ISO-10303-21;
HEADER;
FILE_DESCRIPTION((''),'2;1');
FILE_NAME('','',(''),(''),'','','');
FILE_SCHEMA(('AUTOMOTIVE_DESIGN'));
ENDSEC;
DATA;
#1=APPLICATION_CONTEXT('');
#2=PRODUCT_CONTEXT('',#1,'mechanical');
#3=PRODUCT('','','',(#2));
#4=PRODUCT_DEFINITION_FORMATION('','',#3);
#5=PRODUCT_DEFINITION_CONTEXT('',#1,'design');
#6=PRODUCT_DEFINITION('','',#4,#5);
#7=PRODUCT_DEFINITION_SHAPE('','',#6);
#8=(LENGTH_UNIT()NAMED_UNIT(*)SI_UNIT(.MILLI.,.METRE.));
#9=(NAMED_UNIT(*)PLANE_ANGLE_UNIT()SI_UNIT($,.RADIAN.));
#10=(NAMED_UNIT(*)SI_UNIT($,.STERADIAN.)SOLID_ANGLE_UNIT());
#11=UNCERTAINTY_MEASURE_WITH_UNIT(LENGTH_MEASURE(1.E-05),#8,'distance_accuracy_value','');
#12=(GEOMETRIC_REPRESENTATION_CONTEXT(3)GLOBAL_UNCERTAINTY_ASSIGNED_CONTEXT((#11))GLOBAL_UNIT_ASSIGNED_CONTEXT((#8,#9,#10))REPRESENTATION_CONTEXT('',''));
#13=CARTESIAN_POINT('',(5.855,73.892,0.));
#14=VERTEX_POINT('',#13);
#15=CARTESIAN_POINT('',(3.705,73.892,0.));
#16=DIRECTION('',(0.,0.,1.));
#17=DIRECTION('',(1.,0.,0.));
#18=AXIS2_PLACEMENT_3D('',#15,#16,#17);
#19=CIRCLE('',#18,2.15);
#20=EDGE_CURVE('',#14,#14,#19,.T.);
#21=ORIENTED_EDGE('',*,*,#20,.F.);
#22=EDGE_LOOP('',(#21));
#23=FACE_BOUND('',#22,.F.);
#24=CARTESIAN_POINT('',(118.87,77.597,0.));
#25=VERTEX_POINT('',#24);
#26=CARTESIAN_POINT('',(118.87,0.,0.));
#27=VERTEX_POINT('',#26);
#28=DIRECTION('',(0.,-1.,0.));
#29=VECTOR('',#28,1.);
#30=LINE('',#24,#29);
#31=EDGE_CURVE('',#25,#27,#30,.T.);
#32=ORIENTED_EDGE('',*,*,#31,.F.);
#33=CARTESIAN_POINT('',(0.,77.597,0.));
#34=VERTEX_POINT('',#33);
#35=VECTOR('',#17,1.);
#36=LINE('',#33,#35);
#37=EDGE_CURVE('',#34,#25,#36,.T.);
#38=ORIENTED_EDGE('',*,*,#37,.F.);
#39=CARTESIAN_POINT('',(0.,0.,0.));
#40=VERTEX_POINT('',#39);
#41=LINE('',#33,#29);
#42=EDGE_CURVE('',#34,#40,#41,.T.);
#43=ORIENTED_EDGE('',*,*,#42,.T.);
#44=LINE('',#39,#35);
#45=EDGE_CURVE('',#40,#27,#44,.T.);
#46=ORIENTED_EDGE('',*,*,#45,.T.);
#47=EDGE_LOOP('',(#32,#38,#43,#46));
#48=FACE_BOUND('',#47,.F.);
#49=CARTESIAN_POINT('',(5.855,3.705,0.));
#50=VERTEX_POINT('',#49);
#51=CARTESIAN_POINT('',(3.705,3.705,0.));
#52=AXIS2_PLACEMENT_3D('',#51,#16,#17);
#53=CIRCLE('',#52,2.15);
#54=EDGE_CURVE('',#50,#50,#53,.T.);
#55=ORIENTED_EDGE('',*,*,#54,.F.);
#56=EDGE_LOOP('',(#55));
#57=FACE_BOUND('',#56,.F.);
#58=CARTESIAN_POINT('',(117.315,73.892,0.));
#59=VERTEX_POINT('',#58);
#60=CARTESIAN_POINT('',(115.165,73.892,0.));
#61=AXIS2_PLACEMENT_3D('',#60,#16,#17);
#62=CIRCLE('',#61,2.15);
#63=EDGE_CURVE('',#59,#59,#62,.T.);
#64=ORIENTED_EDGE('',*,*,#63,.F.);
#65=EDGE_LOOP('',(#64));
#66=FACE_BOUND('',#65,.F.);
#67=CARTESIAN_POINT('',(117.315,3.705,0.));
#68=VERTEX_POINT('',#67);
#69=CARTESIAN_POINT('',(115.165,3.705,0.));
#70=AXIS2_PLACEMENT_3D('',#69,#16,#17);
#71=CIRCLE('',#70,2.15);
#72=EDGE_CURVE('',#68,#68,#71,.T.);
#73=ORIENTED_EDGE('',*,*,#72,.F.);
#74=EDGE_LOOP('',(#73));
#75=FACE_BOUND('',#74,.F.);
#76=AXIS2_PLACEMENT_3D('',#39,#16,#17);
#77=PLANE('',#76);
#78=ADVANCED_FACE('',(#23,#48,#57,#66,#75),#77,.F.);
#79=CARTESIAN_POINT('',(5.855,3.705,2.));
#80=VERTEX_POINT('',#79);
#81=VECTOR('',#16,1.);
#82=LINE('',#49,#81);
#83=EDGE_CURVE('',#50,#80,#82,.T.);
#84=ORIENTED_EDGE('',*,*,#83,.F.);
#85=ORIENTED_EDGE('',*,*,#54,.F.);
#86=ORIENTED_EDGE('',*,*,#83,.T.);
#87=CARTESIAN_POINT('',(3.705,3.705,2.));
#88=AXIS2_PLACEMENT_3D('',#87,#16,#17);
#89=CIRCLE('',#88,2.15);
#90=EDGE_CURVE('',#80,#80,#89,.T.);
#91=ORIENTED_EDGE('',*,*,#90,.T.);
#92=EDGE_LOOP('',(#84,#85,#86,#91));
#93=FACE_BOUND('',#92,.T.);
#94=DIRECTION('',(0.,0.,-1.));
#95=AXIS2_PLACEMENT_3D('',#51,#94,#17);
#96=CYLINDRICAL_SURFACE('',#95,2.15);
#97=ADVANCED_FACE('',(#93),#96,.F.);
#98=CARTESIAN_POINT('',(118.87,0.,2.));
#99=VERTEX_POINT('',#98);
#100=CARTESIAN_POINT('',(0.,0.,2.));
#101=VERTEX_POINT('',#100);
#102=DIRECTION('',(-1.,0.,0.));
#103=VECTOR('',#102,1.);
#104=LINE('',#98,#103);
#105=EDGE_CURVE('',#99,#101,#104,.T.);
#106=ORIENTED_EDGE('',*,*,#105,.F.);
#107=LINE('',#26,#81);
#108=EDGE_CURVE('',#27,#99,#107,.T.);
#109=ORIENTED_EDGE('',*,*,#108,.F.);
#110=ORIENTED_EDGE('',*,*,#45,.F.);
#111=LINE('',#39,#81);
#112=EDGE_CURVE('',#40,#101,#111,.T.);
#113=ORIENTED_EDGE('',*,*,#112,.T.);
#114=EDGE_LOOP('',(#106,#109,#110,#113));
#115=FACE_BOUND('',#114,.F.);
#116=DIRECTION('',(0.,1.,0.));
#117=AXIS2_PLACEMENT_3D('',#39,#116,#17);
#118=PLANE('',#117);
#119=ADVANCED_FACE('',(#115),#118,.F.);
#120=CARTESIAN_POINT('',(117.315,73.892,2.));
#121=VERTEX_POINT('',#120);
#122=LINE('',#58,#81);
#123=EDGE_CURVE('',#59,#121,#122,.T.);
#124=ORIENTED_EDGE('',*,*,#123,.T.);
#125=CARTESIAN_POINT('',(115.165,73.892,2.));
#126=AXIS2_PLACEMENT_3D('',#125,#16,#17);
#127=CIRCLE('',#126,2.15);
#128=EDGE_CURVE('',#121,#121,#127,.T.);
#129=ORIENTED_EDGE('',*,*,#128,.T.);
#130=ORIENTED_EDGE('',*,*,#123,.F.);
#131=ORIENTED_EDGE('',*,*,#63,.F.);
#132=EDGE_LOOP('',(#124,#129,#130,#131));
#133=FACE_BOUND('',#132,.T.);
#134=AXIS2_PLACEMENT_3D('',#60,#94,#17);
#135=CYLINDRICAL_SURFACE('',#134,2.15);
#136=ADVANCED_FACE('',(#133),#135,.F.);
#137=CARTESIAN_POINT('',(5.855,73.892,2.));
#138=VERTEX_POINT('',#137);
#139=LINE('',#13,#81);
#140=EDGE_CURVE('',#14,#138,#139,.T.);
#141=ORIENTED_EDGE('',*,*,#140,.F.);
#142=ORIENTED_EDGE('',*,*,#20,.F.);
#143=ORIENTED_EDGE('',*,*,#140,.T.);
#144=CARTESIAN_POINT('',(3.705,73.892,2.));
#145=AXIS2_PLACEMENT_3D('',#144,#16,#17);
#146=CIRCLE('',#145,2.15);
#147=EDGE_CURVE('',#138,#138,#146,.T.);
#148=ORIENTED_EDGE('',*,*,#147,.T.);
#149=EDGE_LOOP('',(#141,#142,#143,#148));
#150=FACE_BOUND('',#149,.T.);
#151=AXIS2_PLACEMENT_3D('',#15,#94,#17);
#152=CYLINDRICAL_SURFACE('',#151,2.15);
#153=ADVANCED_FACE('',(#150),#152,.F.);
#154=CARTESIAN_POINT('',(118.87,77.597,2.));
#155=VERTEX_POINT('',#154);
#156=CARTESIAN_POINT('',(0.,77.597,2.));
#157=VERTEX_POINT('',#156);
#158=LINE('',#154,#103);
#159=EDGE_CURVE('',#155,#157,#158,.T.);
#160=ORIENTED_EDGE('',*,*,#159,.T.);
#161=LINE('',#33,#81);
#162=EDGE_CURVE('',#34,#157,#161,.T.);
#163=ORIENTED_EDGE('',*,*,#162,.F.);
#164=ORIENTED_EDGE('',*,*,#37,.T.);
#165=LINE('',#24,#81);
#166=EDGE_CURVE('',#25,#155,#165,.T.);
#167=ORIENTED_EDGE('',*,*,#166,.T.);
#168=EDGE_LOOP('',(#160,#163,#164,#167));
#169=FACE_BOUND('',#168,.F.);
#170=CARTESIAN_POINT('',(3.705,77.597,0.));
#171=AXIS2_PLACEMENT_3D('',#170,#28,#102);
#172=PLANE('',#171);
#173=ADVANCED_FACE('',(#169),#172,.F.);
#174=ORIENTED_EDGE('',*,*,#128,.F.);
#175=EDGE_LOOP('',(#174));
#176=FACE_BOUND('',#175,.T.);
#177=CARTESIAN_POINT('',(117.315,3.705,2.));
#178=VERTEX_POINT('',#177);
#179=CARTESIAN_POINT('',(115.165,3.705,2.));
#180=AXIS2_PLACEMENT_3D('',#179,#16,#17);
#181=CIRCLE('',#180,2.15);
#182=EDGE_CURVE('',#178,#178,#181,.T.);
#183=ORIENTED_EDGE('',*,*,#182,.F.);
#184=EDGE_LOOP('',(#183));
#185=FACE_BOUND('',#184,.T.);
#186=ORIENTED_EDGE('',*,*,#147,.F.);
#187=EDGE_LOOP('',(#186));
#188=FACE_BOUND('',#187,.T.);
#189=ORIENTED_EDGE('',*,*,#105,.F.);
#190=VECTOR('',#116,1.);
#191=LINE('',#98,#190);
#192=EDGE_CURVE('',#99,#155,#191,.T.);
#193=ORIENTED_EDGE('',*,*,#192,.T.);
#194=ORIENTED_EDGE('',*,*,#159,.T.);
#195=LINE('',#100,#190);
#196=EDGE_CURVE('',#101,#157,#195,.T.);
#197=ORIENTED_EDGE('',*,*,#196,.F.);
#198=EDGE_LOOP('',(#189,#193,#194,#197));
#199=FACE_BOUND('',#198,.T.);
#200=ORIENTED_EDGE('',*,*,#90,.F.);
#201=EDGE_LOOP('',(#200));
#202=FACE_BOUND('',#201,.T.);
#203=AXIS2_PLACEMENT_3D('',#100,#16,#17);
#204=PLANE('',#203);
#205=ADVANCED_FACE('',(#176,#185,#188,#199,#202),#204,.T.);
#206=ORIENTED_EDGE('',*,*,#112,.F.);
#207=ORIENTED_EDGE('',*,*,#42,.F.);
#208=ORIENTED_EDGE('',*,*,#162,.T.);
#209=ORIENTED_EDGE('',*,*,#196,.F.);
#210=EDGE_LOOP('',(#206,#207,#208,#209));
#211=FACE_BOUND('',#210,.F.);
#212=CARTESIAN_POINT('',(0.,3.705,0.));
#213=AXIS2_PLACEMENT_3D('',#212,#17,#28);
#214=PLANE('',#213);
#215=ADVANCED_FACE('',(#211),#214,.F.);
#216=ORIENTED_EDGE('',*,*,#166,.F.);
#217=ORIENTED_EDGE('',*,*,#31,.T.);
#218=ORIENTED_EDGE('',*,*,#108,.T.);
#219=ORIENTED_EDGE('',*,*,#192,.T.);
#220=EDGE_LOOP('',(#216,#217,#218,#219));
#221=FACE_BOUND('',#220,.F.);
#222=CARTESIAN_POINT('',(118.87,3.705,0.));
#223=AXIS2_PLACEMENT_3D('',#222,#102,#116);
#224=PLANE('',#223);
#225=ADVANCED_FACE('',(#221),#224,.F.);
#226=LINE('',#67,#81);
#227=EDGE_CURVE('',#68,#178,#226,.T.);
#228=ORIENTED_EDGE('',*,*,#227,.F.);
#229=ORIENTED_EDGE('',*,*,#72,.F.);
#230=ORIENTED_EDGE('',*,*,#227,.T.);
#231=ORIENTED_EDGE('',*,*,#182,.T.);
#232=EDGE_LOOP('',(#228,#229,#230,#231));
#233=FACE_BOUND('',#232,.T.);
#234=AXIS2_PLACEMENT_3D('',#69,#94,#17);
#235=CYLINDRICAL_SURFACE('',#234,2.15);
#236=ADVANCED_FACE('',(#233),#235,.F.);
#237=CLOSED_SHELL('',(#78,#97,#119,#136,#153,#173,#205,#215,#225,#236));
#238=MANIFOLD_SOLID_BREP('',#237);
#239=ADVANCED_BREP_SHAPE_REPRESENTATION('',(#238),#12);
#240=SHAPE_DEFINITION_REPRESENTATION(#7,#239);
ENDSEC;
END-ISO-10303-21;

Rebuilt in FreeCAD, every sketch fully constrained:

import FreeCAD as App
import Part
import Sketcher
from FreeCAD import Vector


def add_polygon(sketch, points):
    """Adds a closed chain of lines whose ends are joined by coincident constraints."""
    first, n = sketch.GeometryCount, len(points)
    for a, b in zip(points, points[1:] + points[:1]):
        sketch.addGeometry(Part.LineSegment(App.Vector(*a, 0), App.Vector(*b, 0)), False)
    for i in range(n):
        sketch.addConstraint(Sketcher.Constraint("Coincident", first + i, 2, first + (i + 1) % n, 1))

doc = App.newDocument("Part")
body = doc.addObject("PartDesign::Body", "Body")

sketch1 = body.newObject("Sketcher::SketchObject", "Sketch")
sketch1.AttachmentSupport = (doc.getObject("XY_Plane"), [""])
sketch1.MapMode = "FlatFace"
add_polygon(sketch1, [(0, 0), (118.9, 0), (118.9, 77.6), (0, 77.6)])
sketch1.addGeometry(Part.Circle(Vector(3.7, 3.7, 0), Vector(0, 0, 1), 2.1), False)
sketch1.addGeometry(Part.Circle(Vector(115.2, 3.7, 0), Vector(0, 0, 1), 2.1), False)
sketch1.addGeometry(Part.Circle(Vector(3.7, 73.9, 0), Vector(0, 0, 1), 2.1), False)
sketch1.addGeometry(Part.Circle(Vector(115.2, 73.9, 0), Vector(0, 0, 1), 2.1), False)
sketch1.addConstraint([
    Sketcher.Constraint("Horizontal", 0),
    Sketcher.Constraint("Vertical", 1),
    Sketcher.Constraint("Horizontal", 2),
    Sketcher.Constraint("Vertical", 3),
    Sketcher.Constraint("Coincident", 3, 2, -1, 1),
    Sketcher.Constraint("Equal", 4, 5),
    Sketcher.Constraint("Equal", 5, 6),
    Sketcher.Constraint("Equal", 6, 7),
    Sketcher.Constraint("Horizontal", 4, 3, 5, 3),
    Sketcher.Constraint("Horizontal", 6, 3, 7, 3),
    Sketcher.Constraint("Vertical", 4, 3, 6, 3),
    Sketcher.Constraint("Vertical", 5, 3, 7, 3),
    Sketcher.Constraint("Diameter", 4, 4.3),
    Sketcher.Constraint("DistanceX", 0, 1, 0, 2, 118.87),
    Sketcher.Constraint("DistanceY", 1, 1, 1, 2, 77.597),
    Sketcher.Constraint("DistanceX", -1, 1, 4, 3, 3.705),
    Sketcher.Constraint("DistanceY", -1, 1, 4, 3, 3.705),
    Sketcher.Constraint("DistanceX", 5, 3, 0, 2, 3.705),
    Sketcher.Constraint("DistanceY", 7, 3, 1, 2, 3.705),
])
pad1 = body.newObject("PartDesign::Pad", "Pad")
pad1.Profile = sketch1
pad1.Length = 2

doc.recompute()
